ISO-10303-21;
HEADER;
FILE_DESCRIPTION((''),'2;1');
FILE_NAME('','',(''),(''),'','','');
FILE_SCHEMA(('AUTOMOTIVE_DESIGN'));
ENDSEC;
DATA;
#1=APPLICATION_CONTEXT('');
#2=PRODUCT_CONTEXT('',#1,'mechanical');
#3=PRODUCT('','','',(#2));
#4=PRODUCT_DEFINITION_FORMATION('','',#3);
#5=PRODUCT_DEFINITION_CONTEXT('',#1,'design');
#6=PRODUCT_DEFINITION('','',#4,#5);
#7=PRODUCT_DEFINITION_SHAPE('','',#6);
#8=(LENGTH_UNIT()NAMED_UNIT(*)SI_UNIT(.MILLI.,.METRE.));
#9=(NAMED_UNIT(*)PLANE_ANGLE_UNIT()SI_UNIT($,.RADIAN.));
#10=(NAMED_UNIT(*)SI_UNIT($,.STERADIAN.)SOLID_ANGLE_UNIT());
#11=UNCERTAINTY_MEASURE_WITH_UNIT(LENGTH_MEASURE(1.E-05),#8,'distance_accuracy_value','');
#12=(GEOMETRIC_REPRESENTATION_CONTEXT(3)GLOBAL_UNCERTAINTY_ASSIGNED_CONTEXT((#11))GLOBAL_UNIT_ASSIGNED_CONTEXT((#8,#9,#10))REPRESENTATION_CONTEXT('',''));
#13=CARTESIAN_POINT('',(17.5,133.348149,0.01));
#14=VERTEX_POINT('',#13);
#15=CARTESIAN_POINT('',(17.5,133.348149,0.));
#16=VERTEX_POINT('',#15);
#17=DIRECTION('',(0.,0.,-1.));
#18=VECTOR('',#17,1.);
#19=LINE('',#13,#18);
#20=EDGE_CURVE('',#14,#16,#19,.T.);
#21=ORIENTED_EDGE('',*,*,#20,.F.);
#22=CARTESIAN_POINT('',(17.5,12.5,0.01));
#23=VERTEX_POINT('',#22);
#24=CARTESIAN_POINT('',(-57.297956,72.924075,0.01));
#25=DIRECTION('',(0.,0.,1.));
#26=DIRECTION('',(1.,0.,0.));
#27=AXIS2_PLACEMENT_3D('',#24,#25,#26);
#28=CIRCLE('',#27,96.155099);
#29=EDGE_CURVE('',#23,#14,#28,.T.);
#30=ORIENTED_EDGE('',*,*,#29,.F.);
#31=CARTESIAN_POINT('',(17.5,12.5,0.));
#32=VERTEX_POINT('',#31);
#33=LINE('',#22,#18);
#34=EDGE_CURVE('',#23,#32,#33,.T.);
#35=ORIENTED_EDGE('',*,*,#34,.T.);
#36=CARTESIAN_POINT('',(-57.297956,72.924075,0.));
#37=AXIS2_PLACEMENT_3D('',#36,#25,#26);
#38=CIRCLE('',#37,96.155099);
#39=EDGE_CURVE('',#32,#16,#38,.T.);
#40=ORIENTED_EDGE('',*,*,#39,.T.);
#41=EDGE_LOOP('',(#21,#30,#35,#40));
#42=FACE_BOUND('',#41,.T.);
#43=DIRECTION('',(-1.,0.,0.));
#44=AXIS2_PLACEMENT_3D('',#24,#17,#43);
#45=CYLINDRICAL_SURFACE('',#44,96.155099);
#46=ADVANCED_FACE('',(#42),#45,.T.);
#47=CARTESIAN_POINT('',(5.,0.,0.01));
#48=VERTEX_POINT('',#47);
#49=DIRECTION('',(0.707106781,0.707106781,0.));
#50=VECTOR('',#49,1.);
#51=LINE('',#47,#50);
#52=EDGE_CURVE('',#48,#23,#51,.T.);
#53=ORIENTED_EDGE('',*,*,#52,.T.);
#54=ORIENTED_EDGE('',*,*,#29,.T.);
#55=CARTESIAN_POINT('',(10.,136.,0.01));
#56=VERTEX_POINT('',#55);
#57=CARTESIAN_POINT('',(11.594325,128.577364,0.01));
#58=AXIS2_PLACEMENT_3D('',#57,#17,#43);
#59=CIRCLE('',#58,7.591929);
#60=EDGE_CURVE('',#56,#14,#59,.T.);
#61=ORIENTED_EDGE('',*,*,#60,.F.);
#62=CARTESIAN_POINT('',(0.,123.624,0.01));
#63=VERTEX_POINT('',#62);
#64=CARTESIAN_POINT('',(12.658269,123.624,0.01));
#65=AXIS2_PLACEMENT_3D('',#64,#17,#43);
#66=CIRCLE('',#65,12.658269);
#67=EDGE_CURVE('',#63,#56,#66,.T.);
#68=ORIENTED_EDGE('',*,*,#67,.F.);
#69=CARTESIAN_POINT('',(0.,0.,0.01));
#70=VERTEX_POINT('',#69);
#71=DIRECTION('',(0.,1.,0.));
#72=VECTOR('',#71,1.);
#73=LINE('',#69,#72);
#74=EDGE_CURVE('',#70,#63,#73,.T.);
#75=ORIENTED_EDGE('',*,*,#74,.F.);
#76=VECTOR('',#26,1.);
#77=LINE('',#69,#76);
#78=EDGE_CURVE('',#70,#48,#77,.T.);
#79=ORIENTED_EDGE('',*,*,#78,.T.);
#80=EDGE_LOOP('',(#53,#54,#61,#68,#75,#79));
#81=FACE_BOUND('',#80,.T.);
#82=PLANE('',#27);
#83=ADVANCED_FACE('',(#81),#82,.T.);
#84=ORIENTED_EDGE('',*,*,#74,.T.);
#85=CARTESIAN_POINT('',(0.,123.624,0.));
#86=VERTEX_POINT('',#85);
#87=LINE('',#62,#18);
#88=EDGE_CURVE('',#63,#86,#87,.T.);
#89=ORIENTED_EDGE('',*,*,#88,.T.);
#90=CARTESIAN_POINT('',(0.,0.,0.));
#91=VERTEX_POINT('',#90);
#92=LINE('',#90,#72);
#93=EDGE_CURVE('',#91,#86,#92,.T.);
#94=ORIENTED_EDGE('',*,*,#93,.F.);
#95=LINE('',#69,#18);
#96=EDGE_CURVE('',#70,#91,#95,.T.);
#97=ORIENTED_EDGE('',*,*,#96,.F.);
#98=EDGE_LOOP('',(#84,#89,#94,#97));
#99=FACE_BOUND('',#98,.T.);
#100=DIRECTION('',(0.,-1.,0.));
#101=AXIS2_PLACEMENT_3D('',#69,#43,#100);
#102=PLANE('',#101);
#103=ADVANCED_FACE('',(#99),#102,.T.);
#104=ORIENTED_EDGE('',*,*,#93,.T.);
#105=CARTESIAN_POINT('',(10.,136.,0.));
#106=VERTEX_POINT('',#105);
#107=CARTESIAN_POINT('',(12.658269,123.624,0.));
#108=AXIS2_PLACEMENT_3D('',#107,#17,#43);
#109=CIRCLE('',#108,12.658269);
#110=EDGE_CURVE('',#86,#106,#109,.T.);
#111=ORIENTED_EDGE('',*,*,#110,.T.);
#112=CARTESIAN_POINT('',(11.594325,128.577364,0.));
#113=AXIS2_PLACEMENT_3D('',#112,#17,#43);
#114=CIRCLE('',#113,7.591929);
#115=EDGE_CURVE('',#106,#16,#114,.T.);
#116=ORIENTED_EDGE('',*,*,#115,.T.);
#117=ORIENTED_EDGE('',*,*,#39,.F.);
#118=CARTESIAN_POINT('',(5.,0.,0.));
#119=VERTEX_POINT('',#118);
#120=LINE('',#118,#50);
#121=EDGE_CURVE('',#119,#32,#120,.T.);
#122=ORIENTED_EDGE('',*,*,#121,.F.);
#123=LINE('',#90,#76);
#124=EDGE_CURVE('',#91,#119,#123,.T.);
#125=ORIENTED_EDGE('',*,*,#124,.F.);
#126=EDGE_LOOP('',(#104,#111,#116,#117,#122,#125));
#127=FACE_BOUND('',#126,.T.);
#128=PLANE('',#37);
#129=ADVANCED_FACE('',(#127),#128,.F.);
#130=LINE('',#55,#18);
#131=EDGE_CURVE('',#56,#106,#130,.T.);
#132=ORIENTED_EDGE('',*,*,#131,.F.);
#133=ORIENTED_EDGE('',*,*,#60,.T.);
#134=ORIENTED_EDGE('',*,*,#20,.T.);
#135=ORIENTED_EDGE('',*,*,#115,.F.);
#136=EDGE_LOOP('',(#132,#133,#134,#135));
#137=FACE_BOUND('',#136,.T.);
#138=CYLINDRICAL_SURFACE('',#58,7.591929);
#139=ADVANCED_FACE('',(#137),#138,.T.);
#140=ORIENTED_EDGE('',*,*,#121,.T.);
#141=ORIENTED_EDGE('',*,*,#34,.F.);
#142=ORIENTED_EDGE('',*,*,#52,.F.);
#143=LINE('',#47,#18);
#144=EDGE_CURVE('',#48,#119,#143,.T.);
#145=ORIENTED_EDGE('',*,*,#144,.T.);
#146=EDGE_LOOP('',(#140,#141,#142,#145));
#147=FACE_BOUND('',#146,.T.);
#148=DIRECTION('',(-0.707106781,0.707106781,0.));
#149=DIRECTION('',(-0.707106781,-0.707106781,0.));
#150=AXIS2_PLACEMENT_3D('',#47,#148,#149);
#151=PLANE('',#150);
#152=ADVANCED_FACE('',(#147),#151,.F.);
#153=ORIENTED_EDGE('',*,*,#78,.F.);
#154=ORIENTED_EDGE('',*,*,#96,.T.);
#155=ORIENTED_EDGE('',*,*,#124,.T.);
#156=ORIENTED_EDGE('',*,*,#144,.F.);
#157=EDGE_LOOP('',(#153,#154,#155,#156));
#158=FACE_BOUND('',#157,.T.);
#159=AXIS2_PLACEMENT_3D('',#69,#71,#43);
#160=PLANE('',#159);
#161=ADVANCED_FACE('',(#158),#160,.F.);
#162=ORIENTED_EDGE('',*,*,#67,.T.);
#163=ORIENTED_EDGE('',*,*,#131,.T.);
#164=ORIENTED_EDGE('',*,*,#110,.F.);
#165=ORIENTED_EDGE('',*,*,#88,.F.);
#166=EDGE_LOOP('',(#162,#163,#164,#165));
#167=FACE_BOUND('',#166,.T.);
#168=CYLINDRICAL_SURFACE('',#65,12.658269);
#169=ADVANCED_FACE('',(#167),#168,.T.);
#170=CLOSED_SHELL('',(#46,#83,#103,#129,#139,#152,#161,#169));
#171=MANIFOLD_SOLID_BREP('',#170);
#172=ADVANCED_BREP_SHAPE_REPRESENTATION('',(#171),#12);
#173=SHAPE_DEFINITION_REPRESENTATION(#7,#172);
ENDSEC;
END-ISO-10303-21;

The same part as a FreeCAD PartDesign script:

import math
import FreeCAD as App
import Part
import Sketcher
Q = App.Units.Quantity

doc = App.newDocument("Part")
params = doc.addObject("Spreadsheet::Sheet", "Params")
for row, (alias, value) in enumerate([
    ("sketch1_width", "5 mm"),
    ("pad1_length", "0.01 mm"),
], start=1):
    params.set(f"A{row}", alias)
    params.set(f"B{row}", "=" + value)
    params.setAlias(f"B{row}", alias)

body = doc.addObject("PartDesign::Body", "Body")

# Sketch on XY plane
sketch1 = doc.addObject("Sketcher::SketchObject", "Sketch")
body.addObject(sketch1)
sketch1.AttachmentSupport = (doc.XY_Plane, [""])
sketch1.MapMode = "FlatFace"
sketch1.addGeometry([
    Part.LineSegment(App.Vector(0, 124, 0), App.Vector(0, 0, 0)),  # 0
    Part.LineSegment(App.Vector(0, 0, 0), App.Vector(5, 0, 0)),  # 1
    Part.LineSegment(App.Vector(5, 0, 0), App.Vector(18, 12, 0)),  # 2
    Part.ArcOfCircle(Part.Circle(App.Vector(-57, 73, 0), App.Vector(0, 0, 1), 96), math.radians(-39), math.radians(39)),  # 3
    Part.ArcOfCircle(Part.Circle(App.Vector(12, 129, 0), App.Vector(0, 0, 1), 8), math.radians(39), math.radians(102)),  # 4
    Part.ArcOfCircle(Part.Circle(App.Vector(13, 124, 0), App.Vector(0, 0, 1), 13), math.radians(102), math.radians(180)),  # 5
], False)
sketch1.addConstraint([
    Sketcher.Constraint("Coincident", 0, 2, 1, 1),
    Sketcher.Constraint("Coincident", 1, 2, 2, 1),
    Sketcher.Constraint("Coincident", 2, 2, 3, 1),
    Sketcher.Constraint("Tangent", 3, 2, 4, 1),
    Sketcher.Constraint("Tangent", 4, 2, 5, 1),
    Sketcher.Constraint("Tangent", 5, 2, 0, 1),
    Sketcher.Constraint("Vertical", 0),
    Sketcher.Constraint("Horizontal", 1),
    Sketcher.Constraint("Coincident", 0, 2, -1, 1),
    Sketcher.Constraint("Vertical", 2, 2, 3, 2),
    Sketcher.Constraint("DistanceX", 1, 1, 1, 2, 5.0),
    Sketcher.Constraint("Angle", 2, Q("45 deg")),
    Sketcher.Constraint("DistanceX", -1, 1, 4, 2, 10.0),
    Sketcher.Constraint("DistanceY", -1, 1, 4, 2, 136.0),
    Sketcher.Constraint("DistanceX", -1, 1, 2, 2, 17.5),
    Sketcher.Constraint("Radius", 3, 96.155099),
    Sketcher.Constraint("DistanceY", 0, 2, 0, 1, 123.624),
])
sketch1.setExpression("Constraints[10]", "Params.sketch1_width")
pad1 = doc.addObject("PartDesign::Pad", "Pad")
body.addObject(pad1)
pad1.Profile = sketch1
pad1.setExpression("Length", "Params.pad1_length")

doc.recompute()
